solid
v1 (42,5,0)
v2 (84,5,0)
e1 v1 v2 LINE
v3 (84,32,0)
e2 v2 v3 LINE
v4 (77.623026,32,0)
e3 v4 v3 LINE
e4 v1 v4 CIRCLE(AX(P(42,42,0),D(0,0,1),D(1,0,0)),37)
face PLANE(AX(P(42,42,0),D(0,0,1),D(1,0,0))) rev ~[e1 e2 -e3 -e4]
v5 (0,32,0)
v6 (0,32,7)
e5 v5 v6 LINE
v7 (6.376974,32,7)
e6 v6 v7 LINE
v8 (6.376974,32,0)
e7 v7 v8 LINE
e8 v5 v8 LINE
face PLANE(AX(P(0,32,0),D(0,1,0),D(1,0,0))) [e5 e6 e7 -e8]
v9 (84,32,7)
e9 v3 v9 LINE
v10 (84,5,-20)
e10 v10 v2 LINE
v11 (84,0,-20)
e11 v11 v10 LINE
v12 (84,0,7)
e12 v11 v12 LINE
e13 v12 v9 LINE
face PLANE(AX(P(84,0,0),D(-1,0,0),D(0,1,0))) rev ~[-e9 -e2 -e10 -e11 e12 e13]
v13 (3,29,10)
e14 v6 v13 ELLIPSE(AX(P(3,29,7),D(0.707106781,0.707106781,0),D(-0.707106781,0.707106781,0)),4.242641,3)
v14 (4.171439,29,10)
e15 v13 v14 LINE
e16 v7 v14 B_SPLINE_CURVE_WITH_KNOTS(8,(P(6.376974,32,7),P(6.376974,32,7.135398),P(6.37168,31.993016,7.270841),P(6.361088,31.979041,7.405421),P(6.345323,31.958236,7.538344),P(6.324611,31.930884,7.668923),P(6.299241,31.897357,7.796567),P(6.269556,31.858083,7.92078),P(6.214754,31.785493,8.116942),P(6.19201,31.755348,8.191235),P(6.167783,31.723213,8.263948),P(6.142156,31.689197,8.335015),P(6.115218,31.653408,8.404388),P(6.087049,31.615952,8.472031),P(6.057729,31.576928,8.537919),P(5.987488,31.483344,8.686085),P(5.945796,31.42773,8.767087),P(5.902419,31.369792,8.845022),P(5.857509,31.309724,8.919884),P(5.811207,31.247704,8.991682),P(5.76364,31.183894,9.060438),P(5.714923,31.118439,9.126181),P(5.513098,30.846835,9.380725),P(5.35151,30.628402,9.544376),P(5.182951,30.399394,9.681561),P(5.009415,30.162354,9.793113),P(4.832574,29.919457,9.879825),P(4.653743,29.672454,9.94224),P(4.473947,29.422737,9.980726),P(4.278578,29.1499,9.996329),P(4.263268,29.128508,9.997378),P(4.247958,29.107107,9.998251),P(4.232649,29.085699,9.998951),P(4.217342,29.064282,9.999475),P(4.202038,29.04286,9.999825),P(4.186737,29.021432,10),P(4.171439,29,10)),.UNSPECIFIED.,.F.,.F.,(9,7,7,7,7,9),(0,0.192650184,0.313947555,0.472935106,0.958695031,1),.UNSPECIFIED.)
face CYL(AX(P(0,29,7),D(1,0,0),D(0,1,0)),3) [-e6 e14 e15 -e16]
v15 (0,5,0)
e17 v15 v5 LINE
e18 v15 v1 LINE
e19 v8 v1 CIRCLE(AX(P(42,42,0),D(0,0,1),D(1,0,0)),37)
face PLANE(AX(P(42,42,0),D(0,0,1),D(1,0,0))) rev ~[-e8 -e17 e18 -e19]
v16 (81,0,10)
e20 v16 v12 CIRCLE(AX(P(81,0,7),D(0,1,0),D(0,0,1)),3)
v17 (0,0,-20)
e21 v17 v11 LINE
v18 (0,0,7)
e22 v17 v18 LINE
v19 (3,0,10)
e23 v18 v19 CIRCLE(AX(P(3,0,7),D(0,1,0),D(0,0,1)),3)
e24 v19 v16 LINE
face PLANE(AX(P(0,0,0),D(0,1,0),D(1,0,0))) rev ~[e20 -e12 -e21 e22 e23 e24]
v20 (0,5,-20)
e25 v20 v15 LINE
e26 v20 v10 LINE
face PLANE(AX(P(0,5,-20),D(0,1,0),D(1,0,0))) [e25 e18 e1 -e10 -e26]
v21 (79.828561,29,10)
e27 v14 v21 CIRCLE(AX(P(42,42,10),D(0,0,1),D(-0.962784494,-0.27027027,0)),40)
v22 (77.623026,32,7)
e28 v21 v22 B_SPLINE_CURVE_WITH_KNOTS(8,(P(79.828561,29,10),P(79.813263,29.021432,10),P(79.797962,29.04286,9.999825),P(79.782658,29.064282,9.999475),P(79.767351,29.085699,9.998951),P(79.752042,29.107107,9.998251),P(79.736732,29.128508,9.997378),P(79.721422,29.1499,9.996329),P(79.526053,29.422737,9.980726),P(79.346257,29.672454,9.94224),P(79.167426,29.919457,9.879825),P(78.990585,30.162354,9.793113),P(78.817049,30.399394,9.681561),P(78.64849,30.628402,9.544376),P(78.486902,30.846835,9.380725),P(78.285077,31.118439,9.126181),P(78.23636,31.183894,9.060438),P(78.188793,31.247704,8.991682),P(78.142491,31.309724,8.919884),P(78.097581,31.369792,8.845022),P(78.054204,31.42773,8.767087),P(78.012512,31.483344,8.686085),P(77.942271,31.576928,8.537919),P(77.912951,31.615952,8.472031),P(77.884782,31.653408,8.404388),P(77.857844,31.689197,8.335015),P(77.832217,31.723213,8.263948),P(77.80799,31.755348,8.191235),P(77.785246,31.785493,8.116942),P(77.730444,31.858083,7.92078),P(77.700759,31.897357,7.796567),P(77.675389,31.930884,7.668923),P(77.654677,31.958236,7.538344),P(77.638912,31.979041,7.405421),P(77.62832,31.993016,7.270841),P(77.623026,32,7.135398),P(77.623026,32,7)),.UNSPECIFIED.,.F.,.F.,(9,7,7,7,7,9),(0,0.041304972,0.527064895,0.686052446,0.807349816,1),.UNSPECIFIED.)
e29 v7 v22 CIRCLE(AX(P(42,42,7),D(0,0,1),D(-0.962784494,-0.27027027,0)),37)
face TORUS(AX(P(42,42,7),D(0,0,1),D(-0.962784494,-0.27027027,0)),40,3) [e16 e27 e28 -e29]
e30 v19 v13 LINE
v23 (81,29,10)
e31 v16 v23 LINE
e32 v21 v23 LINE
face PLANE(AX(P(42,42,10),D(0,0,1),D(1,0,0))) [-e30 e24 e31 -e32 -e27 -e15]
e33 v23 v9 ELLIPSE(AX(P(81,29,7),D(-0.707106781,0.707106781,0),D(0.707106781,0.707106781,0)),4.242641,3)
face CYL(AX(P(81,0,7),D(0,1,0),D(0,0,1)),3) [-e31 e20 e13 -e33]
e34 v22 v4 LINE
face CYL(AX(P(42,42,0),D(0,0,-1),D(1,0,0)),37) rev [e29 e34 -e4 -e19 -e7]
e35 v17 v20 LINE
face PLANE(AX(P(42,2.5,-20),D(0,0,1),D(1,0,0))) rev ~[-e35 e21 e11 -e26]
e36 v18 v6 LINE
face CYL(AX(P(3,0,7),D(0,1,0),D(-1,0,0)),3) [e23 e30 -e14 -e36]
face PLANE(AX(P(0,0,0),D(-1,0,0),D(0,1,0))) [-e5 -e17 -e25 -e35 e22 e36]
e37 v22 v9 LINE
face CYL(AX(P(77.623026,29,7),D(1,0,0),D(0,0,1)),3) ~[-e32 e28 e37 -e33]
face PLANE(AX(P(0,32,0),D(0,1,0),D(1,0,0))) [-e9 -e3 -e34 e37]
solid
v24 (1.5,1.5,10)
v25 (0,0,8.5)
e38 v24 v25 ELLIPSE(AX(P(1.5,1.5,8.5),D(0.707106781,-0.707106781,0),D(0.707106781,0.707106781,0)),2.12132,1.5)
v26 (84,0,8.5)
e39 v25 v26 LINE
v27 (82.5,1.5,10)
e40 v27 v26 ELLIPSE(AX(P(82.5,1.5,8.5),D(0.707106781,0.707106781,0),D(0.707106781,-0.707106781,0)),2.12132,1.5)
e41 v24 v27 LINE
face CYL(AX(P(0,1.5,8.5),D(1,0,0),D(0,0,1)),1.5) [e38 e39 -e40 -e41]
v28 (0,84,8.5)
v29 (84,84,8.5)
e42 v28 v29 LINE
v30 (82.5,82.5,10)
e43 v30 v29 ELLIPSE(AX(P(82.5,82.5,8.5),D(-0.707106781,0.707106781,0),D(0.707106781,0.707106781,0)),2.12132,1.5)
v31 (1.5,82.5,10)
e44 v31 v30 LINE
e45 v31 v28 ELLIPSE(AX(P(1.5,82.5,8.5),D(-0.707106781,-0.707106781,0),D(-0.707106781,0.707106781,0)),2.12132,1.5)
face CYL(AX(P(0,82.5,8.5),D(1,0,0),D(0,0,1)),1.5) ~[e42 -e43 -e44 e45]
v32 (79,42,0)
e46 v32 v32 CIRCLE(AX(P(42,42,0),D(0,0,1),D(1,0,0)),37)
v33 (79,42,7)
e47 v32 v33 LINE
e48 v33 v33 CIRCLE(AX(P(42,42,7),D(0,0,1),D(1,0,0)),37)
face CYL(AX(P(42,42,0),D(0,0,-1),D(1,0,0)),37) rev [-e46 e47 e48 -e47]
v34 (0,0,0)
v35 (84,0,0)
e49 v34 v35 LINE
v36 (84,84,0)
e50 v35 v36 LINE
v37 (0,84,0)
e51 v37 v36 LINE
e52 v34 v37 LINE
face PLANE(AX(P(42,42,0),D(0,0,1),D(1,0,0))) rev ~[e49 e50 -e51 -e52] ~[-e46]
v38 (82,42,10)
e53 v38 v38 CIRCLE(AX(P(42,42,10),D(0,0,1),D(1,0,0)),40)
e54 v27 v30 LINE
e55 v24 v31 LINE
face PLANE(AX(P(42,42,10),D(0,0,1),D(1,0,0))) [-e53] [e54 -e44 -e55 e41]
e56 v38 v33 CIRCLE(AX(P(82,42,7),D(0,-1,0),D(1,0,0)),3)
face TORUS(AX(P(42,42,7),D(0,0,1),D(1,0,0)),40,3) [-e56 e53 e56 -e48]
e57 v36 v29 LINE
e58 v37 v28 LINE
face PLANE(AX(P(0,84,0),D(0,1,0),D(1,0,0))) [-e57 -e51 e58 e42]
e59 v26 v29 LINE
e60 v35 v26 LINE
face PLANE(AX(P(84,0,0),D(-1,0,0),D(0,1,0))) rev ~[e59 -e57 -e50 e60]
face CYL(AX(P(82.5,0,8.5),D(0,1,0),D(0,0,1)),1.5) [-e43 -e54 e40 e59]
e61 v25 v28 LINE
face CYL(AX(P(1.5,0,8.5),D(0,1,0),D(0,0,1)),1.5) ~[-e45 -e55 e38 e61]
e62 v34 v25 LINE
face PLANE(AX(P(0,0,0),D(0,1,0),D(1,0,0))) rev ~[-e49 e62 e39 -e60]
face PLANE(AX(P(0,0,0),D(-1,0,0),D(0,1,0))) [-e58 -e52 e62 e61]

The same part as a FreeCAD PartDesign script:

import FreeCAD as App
import Part
import Sketcher

V = App.Vector
Q = App.Units.Quantity


def edges_at(feature, points):
    """Names of the edges that pass closest to the given points."""
    edges = feature.Shape.Edges
    near = lambda p: min(range(len(edges)), key=lambda i: edges[i].distToShape(Part.Vertex(*p))[0])
    return sorted({f"Edge{near(p) + 1}" for p in points})

doc = App.newDocument("Part")
body = doc.addObject("PartDesign::Body", "Body")

# Sketch on XY plane
sketch1 = doc.addObject("Sketcher::SketchObject", "Sketch")
body.addObject(sketch1)
sketch1.AttachmentSupport = (doc.XY_Plane, [""])
sketch1.MapMode = "FlatFace"
sketch1.addGeometry(Part.Circle(V(42, 42, 0), V(0, 0, 1), 37), False)
sketch1.addConstraint(Sketcher.Constraint("Diameter", 0, Q("74 mm")))
sketch1.addConstraint(Sketcher.Constraint("DistanceX", -1, 1, 0, 3, Q("42 mm")))
sketch1.addConstraint(Sketcher.Constraint("DistanceY", -1, 1, 0, 3, Q("42 mm")))
pad1 = doc.addObject("PartDesign::Pad", "Pad")
body.addObject(pad1)
pad1.Profile = sketch1
pad1.Length = 10
body2 = doc.addObject("PartDesign::Body", "Body001")

# Sketch on XY plane
sketch2 = doc.addObject("Sketcher::SketchObject", "Sketch001")
body2.addObject(sketch2)
sketch2.AttachmentSupport = (doc.getObject("XY_Plane001"), [""])
sketch2.MapMode = "FlatFace"
sketch2.addGeometry(Part.LineSegment(V(0, 84, 0), V(0, 0, 0)), False)
sketch2.addGeometry(Part.LineSegment(V(0, 0, 0), V(84, 0, 0)), False)
sketch2.addGeometry(Part.LineSegment(V(84, 0, 0), V(84, 84, 0)), False)
sketch2.addGeometry(Part.LineSegment(V(84, 84, 0), V(0, 84, 0)), False)
sketch2.addConstraint(Sketcher.Constraint("Coincident", 0, 2, 1, 1))
sketch2.addConstraint(Sketcher.Constraint("Coincident", 1, 2, 2, 1))
sketch2.addConstraint(Sketcher.Constraint("Coincident", 2, 2, 3, 1))
sketch2.addConstraint(Sketcher.Constraint("Coincident", 3, 2, 0, 1))
sketch2.addConstraint(Sketcher.Constraint("Vertical", 0))
sketch2.addConstraint(Sketcher.Constraint("Horizontal", 1))
sketch2.addConstraint(Sketcher.Constraint("Vertical", 2))
sketch2.addConstraint(Sketcher.Constraint("Horizontal", 3))
sketch2.addConstraint(Sketcher.Constraint("Coincident", 0, 2, -1, 1))
sketch2.addConstraint(Sketcher.Constraint("Equal", 3, 0))
sketch2.addConstraint(Sketcher.Constraint("DistanceX", 1, 1, 1, 2, Q("84 mm")))
pad2 = doc.addObject("PartDesign::Pad", "Pad001")
body2.addObject(pad2)
pad2.Profile = sketch2
pad2.Length = 10
doc.recompute()

boolean = doc.addObject("PartDesign::Boolean", "Boolean")
body2.addObject(boolean)
boolean.Type = "Cut"
boolean.addObjects([body])
doc.recompute()

fillet = doc.addObject("PartDesign::Fillet", "Fillet")
body2.addObject(fillet)
fillet.Base = (boolean, edges_at(boolean, [(5, 42, 10)]))
fillet.Radius = 3
doc.recompute()

fillet2 = doc.addObject("PartDesign::Fillet", "Fillet001")
body2.addObject(fillet2)
fillet2.Base = (fillet, edges_at(fillet, [
    (0, 42, 10),
    (42, 0, 10),
    (84, 42, 10),
    (42, 84, 10),
]))
fillet2.Radius = 1.5
body3 = doc.addObject("PartDesign::Body", "Body002")

# Sketch on XY plane
sketch3 = doc.addObject("Sketcher::SketchObject", "Sketch002")
body3.addObject(sketch3)
sketch3.AttachmentSupport = (doc.getObject("XY_Plane002"), [""])
sketch3.MapMode = "FlatFace"
sketch3.addGeometry(Part.LineSegment(V(0, 132, 0), V(0, 32, 0)), False)
sketch3.addGeometry(Part.LineSegment(V(0, 32, 0), V(84, 32, 0)), False)
sketch3.addGeometry(Part.LineSegment(V(84, 32, 0), V(84, 132, 0)), False)
sketch3.addGeometry(Part.LineSegment(V(84, 132, 0), V(0, 132, 0)), False)
sketch3.addConstraint(Sketcher.Constraint("Coincident", 0, 2, 1, 1))
sketch3.addConstraint(Sketcher.Constraint("Coincident", 1, 2, 2, 1))
sketch3.addConstraint(Sketcher.Constraint("Coincident", 2, 2, 3, 1))
sketch3.addConstraint(Sketcher.Constraint("Coincident", 3, 2, 0, 1))
sketch3.addConstraint(Sketcher.Constraint("Vertical", 0))
sketch3.addConstraint(Sketcher.Constraint("Horizontal", 1))
sketch3.addConstraint(Sketcher.Constraint("Vertical", 2))
sketch3.addConstraint(Sketcher.Constraint("Horizontal", 3))
sketch3.addConstraint(Sketcher.Constraint("PointOnObject", 0, 2, -2))
sketch3.addConstraint(Sketcher.Constraint("DistanceX", 1, 1, 1, 2, Q("84 mm")))
sketch3.addConstraint(Sketcher.Constraint("DistanceY", 0, 2, 0, 1, Q("100 mm")))
sketch3.addConstraint(Sketcher.Constraint("DistanceY", -1, 1, 0, 2, Q("32 mm")))
pad3 = doc.addObject("PartDesign::Pad", "Pad002")
body3.addObject(pad3)
pad3.Profile = sketch3
pad3.Length = 10
body4 = doc.addObject("PartDesign::Body", "Body003")

# Sketch on XY plane
sketch4 = doc.addObject("Sketcher::SketchObject", "Sketch003")
body4.addObject(sketch4)
sketch4.AttachmentSupport = (doc.getObject("XY_Plane003"), [""])
sketch4.MapMode = "FlatFace"
sketch4.addGeometry(Part.Circle(V(42, 42, 0), V(0, 0, 1), 37), False)
sketch4.addConstraint(Sketcher.Constraint("Diameter", 0, Q("74 mm")))
sketch4.addConstraint(Sketcher.Constraint("DistanceX", -1, 1, 0, 3, Q("42 mm")))
sketch4.addConstraint(Sketcher.Constraint("DistanceY", -1, 1, 0, 3, Q("42 mm")))
pad4 = doc.addObject("PartDesign::Pad", "Pad003")
body4.addObject(pad4)
pad4.Profile = sketch4
pad4.Length = 10
body5 = doc.addObject("PartDesign::Body", "Body004")

# Sketch on XY plane
sketch5 = doc.addObject("Sketcher::SketchObject", "Sketch004")
body5.addObject(sketch5)
sketch5.AttachmentSupport = (doc.getObject("XY_Plane004"), [""])
sketch5.MapMode = "FlatFace"
sketch5.addGeometry(Part.LineSegment(V(0, 84, 0), V(0, 0, 0)), False)
sketch5.addGeometry(Part.LineSegment(V(0, 0, 0), V(84, 0, 0)), False)
sketch5.addGeometry(Part.LineSegment(V(84, 0, 0), V(84, 84, 0)), False)
sketch5.addGeometry(Part.LineSegment(V(84, 84, 0), V(0, 84, 0)), False)
sketch5.addConstraint(Sketcher.Constraint("Coincident", 0, 2, 1, 1))
sketch5.addConstraint(Sketcher.Constraint("Coincident", 1, 2, 2, 1))
sketch5.addConstraint(Sketcher.Constraint("Coincident", 2, 2, 3, 1))
sketch5.addConstraint(Sketcher.Constraint("Coincident", 3, 2, 0, 1))
sketch5.addConstraint(Sketcher.Constraint("Vertical", 0))
sketch5.addConstraint(Sketcher.Constraint("Horizontal", 1))
sketch5.addConstraint(Sketcher.Constraint("Vertical", 2))
sketch5.addConstraint(Sketcher.Constraint("Horizontal", 3))
sketch5.addConstraint(Sketcher.Constraint("Coincident", 0, 2, -1, 1))
sketch5.addConstraint(Sketcher.Constraint("Equal", 3, 0))
sketch5.addConstraint(Sketcher.Constraint("DistanceX", 1, 1, 1, 2, Q("84 mm")))
pad5 = doc.addObject("PartDesign::Pad", "Pad004")
body5.addObject(pad5)
pad5.Profile = sketch5
pad5.Length = 10
doc.recompute()

boolean2 = doc.addObject("PartDesign::Boolean", "Boolean001")
body5.addObject(boolean2)
boolean2.Type = "Cut"
boolean2.addObjects([body4])
doc.recompute()

boolean3 = doc.addObject("PartDesign::Boolean", "Boolean002")
body5.addObject(boolean3)
boolean3.Type = "Cut"
boolean3.addObjects([body3])
doc.recompute()

fillet3 = doc.addObject("PartDesign::Fillet", "Fillet002")
body5.addObject(fillet3)
fillet3.Base = (boolean3, edges_at(boolean3, [
    (0, 16, 10),
    (3.188, 32, 10),
    (42, 5, 10),
    (80.812, 32, 10),
    (84, 16, 10),
]))
fillet3.Radius = 3
body6 = doc.addObject("PartDesign::Body", "Body005")

# Sketch on XY plane
sketch6 = doc.addObject("Sketcher::SketchObject", "Sketch005")
body6.addObject(sketch6)
sketch6.AttachmentSupport = (doc.getObject("XY_Plane005"), [""])
sketch6.MapMode = "FlatFace"
sketch6.AttachmentOffset = App.Placement(V(0, 0, -20), App.Rotation())
sketch6.addGeometry(Part.LineSegment(V(0, 5, 0), V(0, 0, 0)), False)
sketch6.addGeometry(Part.LineSegment(V(0, 0, 0), V(84, 0, 0)), False)
sketch6.addGeometry(Part.LineSegment(V(84, 0, 0), V(84, 5, 0)), False)
sketch6.addGeometry(Part.LineSegment(V(84, 5, 0), V(0, 5, 0)), False)
sketch6.addConstraint(Sketcher.Constraint("Coincident", 0, 2, 1, 1))
sketch6.addConstraint(Sketcher.Constraint("Coincident", 1, 2, 2, 1))
sketch6.addConstraint(Sketcher.Constraint("Coincident", 2, 2, 3, 1))
sketch6.addConstraint(Sketcher.Constraint("Coincident", 3, 2, 0, 1))
sketch6.addConstraint(Sketcher.Constraint("Vertical", 0))
sketch6.addConstraint(Sketcher.Constraint("Horizontal", 1))
sketch6.addConstraint(Sketcher.Constraint("Vertical", 2))
sketch6.addConstraint(Sketcher.Constraint("Horizontal", 3))
sketch6.addConstraint(Sketcher.Constraint("Coincident", 0, 2, -1, 1))
sketch6.addConstraint(Sketcher.Constraint("DistanceX", 1, 1, 1, 2, Q("84 mm")))
sketch6.addConstraint(Sketcher.Constraint("DistanceY", 0, 2, 0, 1, Q("5 mm")))
pad6 = doc.addObject("PartDesign::Pad", "Pad005")
body6.addObject(pad6)
pad6.Profile = sketch6
pad6.Length = 20
doc.recompute()

boolean4 = doc.addObject("PartDesign::Boolean", "Boolean003")
body6.addObject(boolean4)
boolean4.Type = "Fuse"
boolean4.addObjects([body5])

doc.recompute()
